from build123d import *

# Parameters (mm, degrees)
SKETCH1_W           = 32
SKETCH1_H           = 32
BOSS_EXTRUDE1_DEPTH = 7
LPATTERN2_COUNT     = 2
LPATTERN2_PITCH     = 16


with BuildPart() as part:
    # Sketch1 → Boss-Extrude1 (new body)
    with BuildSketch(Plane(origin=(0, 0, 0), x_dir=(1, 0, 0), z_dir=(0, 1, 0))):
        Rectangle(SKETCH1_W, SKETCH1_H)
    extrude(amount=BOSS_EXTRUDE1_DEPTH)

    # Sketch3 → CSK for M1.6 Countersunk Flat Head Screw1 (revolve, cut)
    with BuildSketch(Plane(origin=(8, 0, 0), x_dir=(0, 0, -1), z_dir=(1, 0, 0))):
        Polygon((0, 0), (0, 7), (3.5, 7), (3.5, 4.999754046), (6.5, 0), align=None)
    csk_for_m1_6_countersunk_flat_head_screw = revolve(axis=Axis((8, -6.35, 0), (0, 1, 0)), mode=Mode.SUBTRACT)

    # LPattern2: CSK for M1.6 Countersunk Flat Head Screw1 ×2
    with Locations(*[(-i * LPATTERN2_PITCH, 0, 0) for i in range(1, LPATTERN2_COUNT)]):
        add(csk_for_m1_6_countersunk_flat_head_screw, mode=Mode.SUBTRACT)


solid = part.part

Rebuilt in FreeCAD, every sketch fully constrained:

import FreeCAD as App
import Part
import Sketcher


def add_polygon(sketch, points):
    """Adds a closed chain of lines whose ends are joined by coincident constraints."""
    first, n = sketch.GeometryCount, len(points)
    for a, b in zip(points, points[1:] + points[:1]):
        sketch.addGeometry(Part.LineSegment(App.Vector(*a, 0), App.Vector(*b, 0)), False)
    for i in range(n):
        sketch.addConstraint(Sketcher.Constraint("Coincident", first + i, 2, first + (i + 1) % n, 1))

doc = App.newDocument("Part")
params = doc.addObject("Spreadsheet::Sheet", "Params")
for row, (alias, value) in enumerate([
    ("sketch1_width", "32 mm"),
    ("pad1_length", "7 mm"),
    ("sketch2_width", "7 mm"),
    ("sketch2_height", "6.5 mm"),
    ("sketch2_height2", "3.5 mm"),
    ("groove_angle", "360 deg"),
    ("linearpattern_pitch", "16 mm"),
], start=1):
    params.set(f"A{row}", alias)
    params.set(f"B{row}", "=" + value)
    params.setAlias(f"B{row}", alias)

body = doc.addObject("PartDesign::Body", "Body")

sketch1 = body.newObject("Sketcher::SketchObject", "Sketch")
sketch1.AttachmentSupport = (doc.getObject("XZ_Plane"), [""])
sketch1.MapMode = "FlatFace"
add_polygon(sketch1, [(-16, -16), (-16, 16), (16, 16), (16, -16)])
sketch1.addConstraint([
    Sketcher.Constraint("Vertical", 0),
    Sketcher.Constraint("Horizontal", 1),
    Sketcher.Constraint("Vertical", 2),
    Sketcher.Constraint("Horizontal", 3),
    Sketcher.Constraint("Symmetric", 0, 2, 2, 2, -1, 1),
    Sketcher.Constraint("Equal", 3, 0),
    Sketcher.Constraint("DistanceX", 1, 1, 1, 2, 32.0),
])
sketch1.setExpression("Constraints[10]", "Params.sketch1_width")
pad1 = body.newObject("PartDesign::Pad", "Pad")
pad1.Profile = sketch1
pad1.setExpression("Length", "Params.pad1_length")
pad1.Reversed = True

sketch2 = body.newObject("Sketcher::SketchObject", "Sketch001")
sketch2.AttachmentSupport = (doc.getObject("YZ_Plane"), [""])
sketch2.MapMode = "FlatFace"
sketch2.AttachmentOffset = App.Placement(App.Vector(0, 0, 8), App.Rotation())
add_polygon(sketch2, [(7, 0), (0, 0), (0, -6.5), (5, -3.5), (7, -3.5)])
sketch2.addConstraint([
    Sketcher.Constraint("Horizontal", 0),
    Sketcher.Constraint("Vertical", 1),
    Sketcher.Constraint("Horizontal", 3),
    Sketcher.Constraint("Vertical", 4),
    Sketcher.Constraint("Coincident", 0, 2, -1, 1),
    Sketcher.Constraint("DistanceX", 0, 2, 0, 1, 7.0),
    Sketcher.Constraint("DistanceY", 1, 2, 1, 1, 6.5),
    Sketcher.Constraint("DistanceY", 4, 1, 4, 2, 3.5),
    Sketcher.Constraint("Distance", 2, 5.830741),
])
sketch2.setExpression("Constraints[10]", "Params.sketch2_width")
sketch2.setExpression("Constraints[11]", "Params.sketch2_height")
sketch2.setExpression("Constraints[12]", "Params.sketch2_height2")
groove = body.newObject("PartDesign::Groove", "Groove")
groove.Profile = sketch2
groove.ReferenceAxis = (sketch2, ["H_Axis"])
groove.setExpression("Angle", "Params.groove_angle")
doc.recompute()

linearpattern = body.newObject("PartDesign::LinearPattern", "LinearPattern")
linearpattern.Originals = [groove]
linearpattern.Direction = (doc.getObject("X_Axis"), [""])
linearpattern.Mode = "offset"
linearpattern.setExpression("Offset", "Params.linearpattern_pitch")
linearpattern.Occurrences = 2
linearpattern.Reversed = True
body.Tip = linearpattern

doc.recompute()
